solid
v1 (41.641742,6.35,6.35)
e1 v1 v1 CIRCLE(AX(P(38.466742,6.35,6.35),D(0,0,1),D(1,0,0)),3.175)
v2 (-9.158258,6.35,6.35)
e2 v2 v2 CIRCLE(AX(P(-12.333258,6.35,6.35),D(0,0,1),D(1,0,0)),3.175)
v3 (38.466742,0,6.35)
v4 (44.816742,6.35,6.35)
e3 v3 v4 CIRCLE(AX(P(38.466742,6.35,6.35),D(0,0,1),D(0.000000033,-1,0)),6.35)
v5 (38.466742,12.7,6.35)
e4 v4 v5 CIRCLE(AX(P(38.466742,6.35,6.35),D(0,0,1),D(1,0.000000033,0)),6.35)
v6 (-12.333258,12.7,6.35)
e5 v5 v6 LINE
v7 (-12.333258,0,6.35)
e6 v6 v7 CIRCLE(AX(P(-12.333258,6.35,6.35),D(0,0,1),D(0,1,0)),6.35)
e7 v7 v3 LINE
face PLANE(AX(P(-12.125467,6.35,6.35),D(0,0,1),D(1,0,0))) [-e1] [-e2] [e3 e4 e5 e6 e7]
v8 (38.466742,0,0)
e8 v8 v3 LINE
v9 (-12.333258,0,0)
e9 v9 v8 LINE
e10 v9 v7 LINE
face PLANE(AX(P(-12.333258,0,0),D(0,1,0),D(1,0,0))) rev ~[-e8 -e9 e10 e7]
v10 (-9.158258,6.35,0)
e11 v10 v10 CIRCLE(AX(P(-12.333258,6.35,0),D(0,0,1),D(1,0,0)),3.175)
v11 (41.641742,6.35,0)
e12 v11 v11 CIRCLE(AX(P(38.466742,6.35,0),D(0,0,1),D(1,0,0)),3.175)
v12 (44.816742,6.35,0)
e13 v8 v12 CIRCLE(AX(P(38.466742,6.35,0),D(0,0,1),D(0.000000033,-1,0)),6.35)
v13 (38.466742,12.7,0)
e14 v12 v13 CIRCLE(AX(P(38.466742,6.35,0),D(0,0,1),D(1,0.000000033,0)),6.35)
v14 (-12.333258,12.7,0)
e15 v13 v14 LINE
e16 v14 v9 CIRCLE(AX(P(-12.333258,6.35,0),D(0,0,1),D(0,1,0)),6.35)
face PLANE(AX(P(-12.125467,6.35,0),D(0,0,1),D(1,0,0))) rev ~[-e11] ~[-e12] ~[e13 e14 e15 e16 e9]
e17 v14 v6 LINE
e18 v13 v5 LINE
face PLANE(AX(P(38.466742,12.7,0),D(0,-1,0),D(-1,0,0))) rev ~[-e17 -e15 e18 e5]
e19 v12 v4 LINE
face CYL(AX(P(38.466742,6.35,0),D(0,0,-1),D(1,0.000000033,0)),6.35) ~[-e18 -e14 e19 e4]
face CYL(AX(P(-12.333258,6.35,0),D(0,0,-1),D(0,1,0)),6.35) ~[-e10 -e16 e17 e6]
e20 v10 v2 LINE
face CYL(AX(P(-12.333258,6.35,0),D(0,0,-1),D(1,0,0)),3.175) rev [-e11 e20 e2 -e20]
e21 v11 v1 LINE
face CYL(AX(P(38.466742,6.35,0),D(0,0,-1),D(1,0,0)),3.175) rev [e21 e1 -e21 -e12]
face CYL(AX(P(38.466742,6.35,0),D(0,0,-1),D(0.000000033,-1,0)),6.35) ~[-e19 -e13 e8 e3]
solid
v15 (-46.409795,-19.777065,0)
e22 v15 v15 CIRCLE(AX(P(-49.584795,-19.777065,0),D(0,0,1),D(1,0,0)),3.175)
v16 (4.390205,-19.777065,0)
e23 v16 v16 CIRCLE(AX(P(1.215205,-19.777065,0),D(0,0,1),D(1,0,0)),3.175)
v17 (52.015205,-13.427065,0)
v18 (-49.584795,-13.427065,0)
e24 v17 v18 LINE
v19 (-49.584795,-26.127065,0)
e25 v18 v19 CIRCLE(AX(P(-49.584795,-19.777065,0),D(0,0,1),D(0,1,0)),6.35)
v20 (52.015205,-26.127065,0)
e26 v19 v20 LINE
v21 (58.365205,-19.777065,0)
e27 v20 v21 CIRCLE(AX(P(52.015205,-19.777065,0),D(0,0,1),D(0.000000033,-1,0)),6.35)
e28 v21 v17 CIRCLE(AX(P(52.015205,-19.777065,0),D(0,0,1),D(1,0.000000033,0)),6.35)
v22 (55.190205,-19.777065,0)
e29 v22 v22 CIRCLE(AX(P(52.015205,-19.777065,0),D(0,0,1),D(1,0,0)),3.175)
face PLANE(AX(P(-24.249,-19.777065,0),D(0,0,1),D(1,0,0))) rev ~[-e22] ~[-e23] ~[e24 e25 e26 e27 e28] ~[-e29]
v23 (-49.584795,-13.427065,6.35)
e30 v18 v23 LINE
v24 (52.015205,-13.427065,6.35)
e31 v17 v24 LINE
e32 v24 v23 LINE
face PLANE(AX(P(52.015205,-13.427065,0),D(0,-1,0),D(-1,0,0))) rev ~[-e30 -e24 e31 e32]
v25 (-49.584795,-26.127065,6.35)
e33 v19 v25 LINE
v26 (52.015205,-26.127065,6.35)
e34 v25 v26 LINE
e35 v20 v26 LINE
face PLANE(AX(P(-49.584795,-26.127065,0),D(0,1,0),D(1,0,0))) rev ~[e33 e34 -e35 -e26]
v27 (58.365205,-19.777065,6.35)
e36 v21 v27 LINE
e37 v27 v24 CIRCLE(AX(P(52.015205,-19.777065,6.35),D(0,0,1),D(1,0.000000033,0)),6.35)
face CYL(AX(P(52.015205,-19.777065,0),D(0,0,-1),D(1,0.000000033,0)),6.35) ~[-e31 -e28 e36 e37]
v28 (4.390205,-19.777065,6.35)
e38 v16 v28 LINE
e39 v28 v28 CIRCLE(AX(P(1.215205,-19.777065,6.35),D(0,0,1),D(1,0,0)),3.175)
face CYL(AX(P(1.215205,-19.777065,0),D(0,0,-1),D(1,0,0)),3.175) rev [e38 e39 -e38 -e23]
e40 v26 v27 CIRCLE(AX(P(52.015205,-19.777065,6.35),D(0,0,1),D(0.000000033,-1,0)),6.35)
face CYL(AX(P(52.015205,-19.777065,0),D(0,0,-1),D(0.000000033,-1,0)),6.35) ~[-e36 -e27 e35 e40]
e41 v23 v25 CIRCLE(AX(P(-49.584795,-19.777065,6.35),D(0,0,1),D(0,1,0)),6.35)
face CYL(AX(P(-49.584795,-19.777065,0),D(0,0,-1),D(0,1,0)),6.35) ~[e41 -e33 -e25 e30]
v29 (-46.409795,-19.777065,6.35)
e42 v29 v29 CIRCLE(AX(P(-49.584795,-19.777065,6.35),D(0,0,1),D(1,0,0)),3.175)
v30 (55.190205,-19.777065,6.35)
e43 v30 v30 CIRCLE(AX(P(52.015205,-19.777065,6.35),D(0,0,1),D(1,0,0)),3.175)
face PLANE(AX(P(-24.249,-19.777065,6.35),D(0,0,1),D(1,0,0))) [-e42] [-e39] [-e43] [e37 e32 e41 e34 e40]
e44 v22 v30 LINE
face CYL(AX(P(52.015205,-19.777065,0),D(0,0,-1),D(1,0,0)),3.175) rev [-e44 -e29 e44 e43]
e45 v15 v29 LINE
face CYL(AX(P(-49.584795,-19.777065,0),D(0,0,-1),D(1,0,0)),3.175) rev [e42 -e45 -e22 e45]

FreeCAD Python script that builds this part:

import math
import FreeCAD as App
import Part
import Sketcher
from FreeCAD import Vector
Q = App.Units.Quantity

doc = App.newDocument("Part")
body = doc.addObject("PartDesign::Body", "Body")
body.AllowCompound = True

# Sketch on XY plane
sketch1 = body.newObject("Sketcher::SketchObject", "Sketch")
sketch1.AttachmentSupport = (doc.getObject("XY_Plane"), [""])
sketch1.MapMode = "FlatFace"
sketch1.addGeometry([
    Part.ArcOfCircle(Part.Circle(Vector(-12.333258, 6.35, 0), Vector(0, 0, 1), 6.35), math.radians(90), math.radians(270)),  # 0
    Part.LineSegment(Vector(-12.333258, 0, 0), Vector(38.466742, 0, 0)),  # 1
    Part.ArcOfCircle(Part.Circle(Vector(38.466742, 6.35, 0), Vector(0, 0, 1), 6.35), math.radians(-89.999998), math.radians(-0.000002)),  # 2
    Part.ArcOfCircle(Part.Circle(Vector(38.466742, 6.35, 0), Vector(0, 0, 1), 6.35), math.radians(0.000002), math.radians(89.999998)),  # 3
    Part.LineSegment(Vector(38.466742, 12.7, 0), Vector(-12.333258, 12.7, 0)),  # 4
    Part.Circle(Vector(-12.333258, 6.35, 0), Vector(0, 0, 1), 3.175),  # 5
    Part.Circle(Vector(38.466742, 6.35, 0), Vector(0, 0, 1), 3.175),  # 6
    Part.LineSegment(Vector(52.015205, -13.427065, 0), Vector(-49.584795, -13.427065, 0)),  # 7
    Part.ArcOfCircle(Part.Circle(Vector(-49.584795, -19.777065, 0), Vector(0, 0, 1), 6.35), math.radians(90), math.radians(270)),  # 8
    Part.LineSegment(Vector(-49.584795, -26.127065, 0), Vector(52.015205, -26.127065, 0)),  # 9
    Part.ArcOfCircle(Part.Circle(Vector(52.015205, -19.777065, 0), Vector(0, 0, 1), 6.35), math.radians(-89.999998), math.radians(-0.000002)),  # 10
    Part.ArcOfCircle(Part.Circle(Vector(52.015205, -19.777065, 0), Vector(0, 0, 1), 6.35), math.radians(0.000002), math.radians(89.999998)),  # 11
    Part.Circle(Vector(-49.584795, -19.777065, 0), Vector(0, 0, 1), 3.175),  # 12
    Part.Circle(Vector(1.215205, -19.777065, 0), Vector(0, 0, 1), 3.175),  # 13
    Part.Circle(Vector(52.015205, -19.777065, 0), Vector(0, 0, 1), 3.175),  # 14
], False)
sketch1.addConstraint([
    Sketcher.Constraint("Tangent", 0, 2, 1, 1),
    Sketcher.Constraint("Tangent", 1, 2, 2, 1),
    Sketcher.Constraint("Tangent", 2, 2, 3, 1),
    Sketcher.Constraint("Tangent", 3, 2, 4, 1),
    Sketcher.Constraint("Tangent", 4, 2, 0, 1),
    Sketcher.Constraint("Tangent", 7, 2, 8, 1),
    Sketcher.Constraint("Tangent", 8, 2, 9, 1),
    Sketcher.Constraint("Tangent", 9, 2, 10, 1),
    Sketcher.Constraint("Tangent", 10, 2, 11, 1),
    Sketcher.Constraint("Tangent", 11, 2, 7, 1),
    Sketcher.Constraint("Horizontal", 1),
    Sketcher.Constraint("Horizontal", 4),
    Sketcher.Constraint("Horizontal", 7),
    Sketcher.Constraint("Horizontal", 9),
    Sketcher.Constraint("Coincident", 5, 3, 0, 3),
    Sketcher.Constraint("Coincident", 6, 3, 2, 3),
    Sketcher.Constraint("Coincident", 12, 3, 8, 3),
    Sketcher.Constraint("Coincident", 14, 3, 10, 3),
    Sketcher.Constraint("Equal", 0, 2),
    Sketcher.Constraint("Equal", 5, 6),
    Sketcher.Constraint("Equal", 3, 8),
    Sketcher.Constraint("Equal", 8, 10),
    Sketcher.Constraint("Equal", 6, 12),
    Sketcher.Constraint("Equal", 12, 13),
    Sketcher.Constraint("Equal", 13, 14),
    Sketcher.Constraint("PointOnObject", 0, 2, -1),
    Sketcher.Constraint("Horizontal", 12, 3, 13, 3),
    Sketcher.Constraint("Horizontal", 6, 3, 2, 2),
    Sketcher.Constraint("Horizontal", 14, 3, 10, 2),
    Sketcher.Constraint("Diameter", 5, Q("0.25 in")),
    Sketcher.Constraint("DistanceX", 1, 1, 1, 2, Q("2 in")),
    Sketcher.Constraint("DistanceX", 7, 2, 7, 1, Q("4 in")),
    Sketcher.Constraint("Radius", 0, Q("0.25 in")),
    Sketcher.Constraint("DistanceX", 0, 3, -1, 1, 12.333258),
    Sketcher.Constraint("DistanceX", 8, 3, -1, 1, 49.584795),
    Sketcher.Constraint("DistanceY", 8, 3, -1, 1, 19.777065),
    Sketcher.Constraint("DistanceX", -1, 1, 13, 3, 1.215205),
])
pad1 = body.newObject("PartDesign::Pad", "Pad")
pad1.Profile = sketch1
pad1.Length = Q("0.25 in")

doc.recompute()
